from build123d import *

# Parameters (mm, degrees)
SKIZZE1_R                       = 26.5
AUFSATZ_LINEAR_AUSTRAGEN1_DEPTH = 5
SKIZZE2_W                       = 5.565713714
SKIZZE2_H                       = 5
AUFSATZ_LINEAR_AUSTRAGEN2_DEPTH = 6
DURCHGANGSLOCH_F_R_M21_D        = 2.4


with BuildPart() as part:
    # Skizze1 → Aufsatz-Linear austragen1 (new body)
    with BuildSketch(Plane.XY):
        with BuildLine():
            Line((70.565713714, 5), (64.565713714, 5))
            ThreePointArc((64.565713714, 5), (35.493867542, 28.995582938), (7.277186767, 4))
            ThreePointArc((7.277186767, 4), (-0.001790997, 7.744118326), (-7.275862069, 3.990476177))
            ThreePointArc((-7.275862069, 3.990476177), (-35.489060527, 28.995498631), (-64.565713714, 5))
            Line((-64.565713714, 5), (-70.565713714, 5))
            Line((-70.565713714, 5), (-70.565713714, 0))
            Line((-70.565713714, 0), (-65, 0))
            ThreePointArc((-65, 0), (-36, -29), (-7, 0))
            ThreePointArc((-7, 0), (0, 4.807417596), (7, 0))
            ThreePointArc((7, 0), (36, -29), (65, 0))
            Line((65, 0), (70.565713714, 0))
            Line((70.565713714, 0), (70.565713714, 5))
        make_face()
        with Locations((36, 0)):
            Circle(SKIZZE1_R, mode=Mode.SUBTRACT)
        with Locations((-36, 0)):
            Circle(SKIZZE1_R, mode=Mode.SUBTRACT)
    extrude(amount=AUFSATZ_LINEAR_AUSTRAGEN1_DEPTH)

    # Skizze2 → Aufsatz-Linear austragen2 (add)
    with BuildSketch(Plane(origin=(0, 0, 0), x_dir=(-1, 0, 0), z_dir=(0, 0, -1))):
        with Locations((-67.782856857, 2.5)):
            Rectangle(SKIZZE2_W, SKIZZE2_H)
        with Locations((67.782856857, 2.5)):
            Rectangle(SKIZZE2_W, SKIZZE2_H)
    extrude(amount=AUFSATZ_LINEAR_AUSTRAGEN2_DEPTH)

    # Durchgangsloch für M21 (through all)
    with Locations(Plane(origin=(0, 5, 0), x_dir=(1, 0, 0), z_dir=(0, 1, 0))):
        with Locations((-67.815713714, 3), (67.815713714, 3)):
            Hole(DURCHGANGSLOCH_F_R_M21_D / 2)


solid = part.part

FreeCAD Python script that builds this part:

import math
import FreeCAD as App
import Part
import Sketcher
Q = App.Units.Quantity

doc = App.newDocument("Part")
body = doc.addObject("PartDesign::Body", "Body")

# Sketch on XY plane
sketch1 = doc.addObject("Sketcher::SketchObject", "Sketch")
body.addObject(sketch1)
sketch1.AttachmentSupport = (doc.XY_Plane, [""])
sketch1.MapMode = "FlatFace"
sketch1.addGeometry(Part.LineSegment(App.Vector(70.565714, 5, 0), App.Vector(64.565714, 5, 0)), False)
sketch1.addGeometry(Part.ArcOfCircle(Part.Circle(App.Vector(36, 0, 0), App.Vector(0, 0, 1), 29), math.radians(9.928192), math.radians(172.071858)), False)
sketch1.addGeometry(Part.ArcOfCircle(Part.Circle(App.Vector(0.004057, -1.192138, 0), App.Vector(0, 0, 1), 8.936258), math.radians(35.522263), math.radians(144.552728)), False)
sketch1.addGeometry(Part.ArcOfCircle(Part.Circle(App.Vector(-36, 0, 0), App.Vector(0, 0, 1), 29), math.radians(7.909144), math.radians(170.071808)), False)
sketch1.addGeometry(Part.LineSegment(App.Vector(-64.565714, 5, 0), App.Vector(-70.565714, 5, 0)), False)
sketch1.addGeometry(Part.LineSegment(App.Vector(-70.565714, 5, 0), App.Vector(-70.565714, 0, 0)), False)
sketch1.addGeometry(Part.LineSegment(App.Vector(-70.565714, 0, 0), App.Vector(-65, 0, 0)), False)
sketch1.addGeometry(Part.ArcOfCircle(Part.Circle(App.Vector(-36, 0, 0), App.Vector(0, 0, 1), 29), math.radians(180), math.radians(360)), False)
sketch1.addGeometry(Part.ArcOfCircle(Part.Circle(App.Vector(0, -2.692582, 0), App.Vector(0, 0, 1), 7.5), math.radians(21.03947), math.radians(158.96053)), False)
sketch1.addGeometry(Part.ArcOfCircle(Part.Circle(App.Vector(36, 0, 0), App.Vector(0, 0, 1), 29), math.radians(180), math.radians(360)), False)
sketch1.addGeometry(Part.LineSegment(App.Vector(65, 0, 0), App.Vector(70.565714, 0, 0)), False)
sketch1.addGeometry(Part.LineSegment(App.Vector(70.565714, 0, 0), App.Vector(70.565714, 5, 0)), False)
sketch1.addGeometry(Part.Circle(App.Vector(-36, 0, 0), App.Vector(0, 0, 1), 26.5), False)
sketch1.addGeometry(Part.Circle(App.Vector(36, 0, 0), App.Vector(0, 0, 1), 26.5), False)
sketch1.addConstraint(Sketcher.Constraint("Coincident", 0, 2, 1, 1))
sketch1.addConstraint(Sketcher.Constraint("Coincident", 1, 2, 2, 1))
sketch1.addConstraint(Sketcher.Constraint("Coincident", 2, 2, 3, 1))
sketch1.addConstraint(Sketcher.Constraint("Coincident", 3, 2, 4, 1))
sketch1.addConstraint(Sketcher.Constraint("Coincident", 4, 2, 5, 1))
sketch1.addConstraint(Sketcher.Constraint("Coincident", 5, 2, 6, 1))
sketch1.addConstraint(Sketcher.Constraint("Coincident", 6, 2, 7, 1))
sketch1.addConstraint(Sketcher.Constraint("Coincident", 7, 2, 8, 2))
sketch1.addConstraint(Sketcher.Constraint("Coincident", 8, 1, 9, 1))
sketch1.addConstraint(Sketcher.Constraint("Coincident", 9, 2, 10, 1))
sketch1.addConstraint(Sketcher.Constraint("Coincident", 10, 2, 11, 1))
sketch1.addConstraint(Sketcher.Constraint("Coincident", 11, 2, 0, 1))
sketch1.addConstraint(Sketcher.Constraint("Horizontal", 0))
sketch1.addConstraint(Sketcher.Constraint("Horizontal", 4))
sketch1.addConstraint(Sketcher.Constraint("Vertical", 5))
sketch1.addConstraint(Sketcher.Constraint("Horizontal", 6))
sketch1.addConstraint(Sketcher.Constraint("Horizontal", 10))
sketch1.addConstraint(Sketcher.Constraint("Vertical", 11))
sketch1.addConstraint(Sketcher.Constraint("Coincident", 7, 3, 3, 3))
sketch1.addConstraint(Sketcher.Constraint("Coincident", 9, 3, 1, 3))
sketch1.addConstraint(Sketcher.Constraint("Coincident", 12, 3, 3, 3))
sketch1.addConstraint(Sketcher.Constraint("Coincident", 13, 3, 1, 3))
sketch1.addConstraint(Sketcher.Constraint("Equal", 1, 3))
sketch1.addConstraint(Sketcher.Constraint("Equal", 3, 7))
sketch1.addConstraint(Sketcher.Constraint("Equal", 7, 9))
sketch1.addConstraint(Sketcher.Constraint("Equal", 12, 13))
sketch1.addConstraint(Sketcher.Constraint("Symmetric", 1, 3, 3, 3, -1, 1))
sketch1.addConstraint(Sketcher.Constraint("Symmetric", 5, 2, 10, 2, -1, 1))
sketch1.addConstraint(Sketcher.Constraint("Symmetric", 0, 2, 3, 2, -2))
sketch1.addConstraint(Sketcher.Constraint("PointOnObject", 8, 3, -2))
sketch1.addConstraint(Sketcher.Constraint("PointOnObject", 5, 2, -1))
sketch1.addConstraint(Sketcher.Constraint("PointOnObject", 7, 2, -1))
sketch1.addConstraint(Sketcher.Constraint("Diameter", 12, Q("53 mm")))
sketch1.addConstraint(Sketcher.Constraint("Radius", 1, Q("29 mm")))
sketch1.addConstraint(Sketcher.Constraint("Radius", 8, Q("7.5 mm")))
sketch1.addConstraint(Sketcher.Constraint("DistanceX", 0, 2, 0, 1, Q("6 mm")))
sketch1.addConstraint(Sketcher.Constraint("DistanceY", 5, 2, 5, 1, Q("5 mm")))
sketch1.addConstraint(Sketcher.Constraint("DistanceX", -1, 1, 1, 3, Q("36 mm")))
sketch1.addConstraint(Sketcher.Constraint("DistanceY", -1, 1, 1, 2, Q("4 mm")))
sketch1.addConstraint(Sketcher.Constraint("Radius", 2, Q("8.936258 mm")))
sketch1.addConstraint(Sketcher.Constraint("DistanceY", 2, 3, -1, 1, Q("1.192138 mm")))
pad1 = doc.addObject("PartDesign::Pad", "Pad")
body.addObject(pad1)
pad1.Profile = sketch1
pad1.Length = 5

# Sketch on XY plane
sketch2 = doc.addObject("Sketcher::SketchObject", "Sketch001")
body.addObject(sketch2)
sketch2.AttachmentSupport = (doc.XY_Plane, [""])
sketch2.MapMode = "FlatFace"
sketch2.addGeometry(Part.LineSegment(App.Vector(70.565714, 5, 0), App.Vector(70.565714, 0, 0)), False)
sketch2.addGeometry(Part.LineSegment(App.Vector(70.565714, 0, 0), App.Vector(65, 0, 0)), False)
sketch2.addGeometry(Part.LineSegment(App.Vector(65, 0, 0), App.Vector(65, 5, 0)), False)
sketch2.addGeometry(Part.LineSegment(App.Vector(65, 5, 0), App.Vector(70.565714, 5, 0)), False)
sketch2.addGeometry(Part.LineSegment(App.Vector(-65, 5, 0), App.Vector(-65, 0, 0)), False)
sketch2.addGeometry(Part.LineSegment(App.Vector(-65, 0, 0), App.Vector(-70.565714, 0, 0)), False)
sketch2.addGeometry(Part.LineSegment(App.Vector(-70.565714, 0, 0), App.Vector(-70.565714, 5, 0)), False)
sketch2.addGeometry(Part.LineSegment(App.Vector(-70.565714, 5, 0), App.Vector(-65, 5, 0)), False)
sketch2.addConstraint(Sketcher.Constraint("Coincident", 0, 2, 1, 1))
sketch2.addConstraint(Sketcher.Constraint("Coincident", 1, 2, 2, 1))
sketch2.addConstraint(Sketcher.Constraint("Coincident", 2, 2, 3, 1))
sketch2.addConstraint(Sketcher.Constraint("Coincident", 3, 2, 0, 1))
sketch2.addConstraint(Sketcher.Constraint("Coincident", 4, 2, 5, 1))
sketch2.addConstraint(Sketcher.Constraint("Coincident", 5, 2, 6, 1))
sketch2.addConstraint(Sketcher.Constraint("Coincident", 6, 2, 7, 1))
sketch2.addConstraint(Sketcher.Constraint("Coincident", 7, 2, 4, 1))
sketch2.addConstraint(Sketcher.Constraint("Vertical", 0))
sketch2.addConstraint(Sketcher.Constraint("Horizontal", 1))
sketch2.addConstraint(Sketcher.Constraint("Vertical", 2))
sketch2.addConstraint(Sketcher.Constraint("Horizontal", 3))
sketch2.addConstraint(Sketcher.Constraint("Vertical", 4))
sketch2.addConstraint(Sketcher.Constraint("Horizontal", 5))
sketch2.addConstraint(Sketcher.Constraint("Vertical", 6))
sketch2.addConstraint(Sketcher.Constraint("Horizontal", 7))
sketch2.addConstraint(Sketcher.Constraint("Symmetric", 1, 2, 4, 2, -1, 1))
sketch2.addConstraint(Sketcher.Constraint("Symmetric", 0, 2, 5, 2, -2))
sketch2.addConstraint(Sketcher.Constraint("Horizontal", 3, 2, 6, 2))
sketch2.addConstraint(Sketcher.Constraint("DistanceY", 0, 2, 0, 1, Q("5 mm")))
sketch2.addConstraint(Sketcher.Constraint("DistanceX", -1, 1, 1, 2, Q("65 mm")))
sketch2.addConstraint(Sketcher.Constraint("DistanceX", 1, 2, 1, 1, Q("5.565714 mm")))
pad2 = doc.addObject("PartDesign::Pad", "Pad001")
body.addObject(pad2)
pad2.Profile = sketch2
pad2.Length = 6
pad2.Reversed = True

# Sketch on XZ plane
sketch3 = doc.addObject("Sketcher::SketchObject", "Sketch002")
body.addObject(sketch3)
sketch3.AttachmentSupport = (doc.XZ_Plane, [""])
sketch3.MapMode = "FlatFace"
sketch3.AttachmentOffset = App.Placement(App.Vector(0, 0, -5), App.Rotation())
sketch3.addGeometry(Part.Circle(App.Vector(-67.815714, -3, 0), App.Vector(0, 0, 1), 1.2), False)
sketch3.addGeometry(Part.Circle(App.Vector(67.815714, -3, 0), App.Vector(0, 0, 1), 1.2), False)
sketch3.addConstraint(Sketcher.Constraint("Equal", 0, 1))
sketch3.addConstraint(Sketcher.Constraint("Symmetric", 0, 3, 1, 3, -2))
sketch3.addConstraint(Sketcher.Constraint("Diameter", 0, Q("2.4 mm")))
sketch3.addConstraint(Sketcher.Constraint("DistanceY", 0, 3, -1, 1, Q("3 mm")))
sketch3.addConstraint(Sketcher.Constraint("DistanceX", 0, 3, -1, 1, Q("67.815714 mm")))
doc.recompute()
hole = doc.addObject("PartDesign::Hole", "Hole")
body.addObject(hole)
hole.Profile = sketch3
hole.ThreadType = "None"
hole.Diameter = 2.4
hole.DepthType = "ThroughAll"
hole.Reversed = True

doc.recompute()
